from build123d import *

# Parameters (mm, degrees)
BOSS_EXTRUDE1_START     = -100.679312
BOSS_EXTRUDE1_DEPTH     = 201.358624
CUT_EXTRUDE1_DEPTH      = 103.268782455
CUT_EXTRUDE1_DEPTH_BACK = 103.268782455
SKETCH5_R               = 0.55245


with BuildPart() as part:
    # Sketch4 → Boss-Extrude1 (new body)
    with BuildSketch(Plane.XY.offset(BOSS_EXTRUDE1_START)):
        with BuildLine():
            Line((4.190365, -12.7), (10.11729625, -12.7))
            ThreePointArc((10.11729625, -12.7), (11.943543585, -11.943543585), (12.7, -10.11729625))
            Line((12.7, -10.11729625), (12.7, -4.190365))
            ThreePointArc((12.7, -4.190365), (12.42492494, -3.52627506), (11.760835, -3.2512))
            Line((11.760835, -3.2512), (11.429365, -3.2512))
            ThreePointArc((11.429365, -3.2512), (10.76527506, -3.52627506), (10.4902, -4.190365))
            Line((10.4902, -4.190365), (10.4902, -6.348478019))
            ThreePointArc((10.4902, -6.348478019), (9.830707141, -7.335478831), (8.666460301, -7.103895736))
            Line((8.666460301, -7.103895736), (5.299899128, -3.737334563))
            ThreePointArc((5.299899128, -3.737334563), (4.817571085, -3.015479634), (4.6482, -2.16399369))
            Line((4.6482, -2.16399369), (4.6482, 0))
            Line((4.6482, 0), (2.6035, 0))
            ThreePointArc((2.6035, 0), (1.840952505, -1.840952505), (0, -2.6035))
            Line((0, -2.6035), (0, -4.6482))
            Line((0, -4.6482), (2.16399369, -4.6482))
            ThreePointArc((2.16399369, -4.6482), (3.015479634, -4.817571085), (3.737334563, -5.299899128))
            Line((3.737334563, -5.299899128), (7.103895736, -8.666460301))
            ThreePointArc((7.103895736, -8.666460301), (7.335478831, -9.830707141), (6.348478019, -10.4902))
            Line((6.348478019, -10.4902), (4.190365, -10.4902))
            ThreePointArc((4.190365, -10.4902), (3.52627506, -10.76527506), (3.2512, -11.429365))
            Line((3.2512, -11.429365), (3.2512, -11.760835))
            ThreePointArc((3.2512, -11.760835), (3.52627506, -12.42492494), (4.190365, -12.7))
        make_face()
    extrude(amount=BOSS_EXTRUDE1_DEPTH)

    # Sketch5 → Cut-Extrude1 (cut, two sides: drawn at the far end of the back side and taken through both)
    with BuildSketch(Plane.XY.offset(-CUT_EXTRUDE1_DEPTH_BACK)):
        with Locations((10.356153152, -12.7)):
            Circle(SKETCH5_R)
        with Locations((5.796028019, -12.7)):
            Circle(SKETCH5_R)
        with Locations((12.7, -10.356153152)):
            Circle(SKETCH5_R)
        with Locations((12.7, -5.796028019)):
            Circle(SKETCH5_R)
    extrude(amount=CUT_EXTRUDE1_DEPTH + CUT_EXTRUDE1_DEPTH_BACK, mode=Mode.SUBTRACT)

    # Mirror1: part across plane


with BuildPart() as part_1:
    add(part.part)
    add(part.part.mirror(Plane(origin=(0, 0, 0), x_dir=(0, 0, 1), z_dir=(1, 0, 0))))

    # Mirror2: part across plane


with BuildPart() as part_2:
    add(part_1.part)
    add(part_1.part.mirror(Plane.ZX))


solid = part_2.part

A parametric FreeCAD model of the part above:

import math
import FreeCAD as App
import Part
import Sketcher
Q = App.Units.Quantity

doc = App.newDocument("Part")
body = doc.addObject("PartDesign::Body", "Body")

sketch1 = body.newObject("Sketcher::SketchObject", "Sketch")
sketch1.AttachmentSupport = (doc.getObject("XY_Plane"), [""])
sketch1.MapMode = "FlatFace"
sketch1.AttachmentOffset = App.Placement(App.Vector(0, 0, -100.679312), App.Rotation())
sketch1.addGeometry([
    Part.LineSegment(App.Vector(4.190365, -12.7, 0), App.Vector(10.117296, -12.7, 0)),
    Part.ArcOfCircle(Part.Circle(App.Vector(10.117296, -10.117296, 0), App.Vector(0, 0, 1), 2.582704), math.radians(-90), math.radians(0)),
    Part.LineSegment(App.Vector(12.7, -10.117296, 0), App.Vector(12.7, -4.190365, 0)),
    Part.ArcOfCircle(Part.Circle(App.Vector(11.760835, -4.190365, 0), App.Vector(0, 0, 1), 0.939165), math.radians(0), math.radians(90)),
    Part.LineSegment(App.Vector(11.760835, -3.2512, 0), App.Vector(11.429365, -3.2512, 0)),
    Part.ArcOfCircle(Part.Circle(App.Vector(11.429365, -4.190365, 0), App.Vector(0, 0, 1), 0.939165), math.radians(90), math.radians(180)),
    Part.LineSegment(App.Vector(10.4902, -4.190365, 0), App.Vector(10.4902, -6.348478, 0)),
    Part.ArcOfCircle(Part.Circle(App.Vector(9.421878, -6.348478, 0), App.Vector(0, 0, 1), 1.068322), math.radians(-135), math.radians(0)),
    Part.LineSegment(App.Vector(8.66646, -7.103896, 0), App.Vector(5.299899, -3.737335, 0)),
    Part.ArcOfCircle(Part.Circle(App.Vector(6.87324, -2.163994, 0), App.Vector(0, 0, 1), 2.22504), math.radians(-180), math.radians(-135)),
    Part.LineSegment(App.Vector(4.6482, -2.163994, 0), App.Vector(4.6482, 0, 0)),
    Part.LineSegment(App.Vector(4.6482, 0, 0), App.Vector(2.6035, 0, 0)),
    Part.ArcOfCircle(Part.Circle(App.Vector(0, 0, 0), App.Vector(0, 0, 1), 2.6035), math.radians(-90), math.radians(0)),
    Part.LineSegment(App.Vector(0, -2.6035, 0), App.Vector(0, -4.6482, 0)),
    Part.LineSegment(App.Vector(0, -4.6482, 0), App.Vector(2.163994, -4.6482, 0)),
    Part.ArcOfCircle(Part.Circle(App.Vector(2.163994, -6.87324, 0), App.Vector(0, 0, 1), 2.22504), math.radians(45), math.radians(90)),
    Part.LineSegment(App.Vector(3.737335, -5.299899, 0), App.Vector(7.103896, -8.66646, 0)),
    Part.ArcOfCircle(Part.Circle(App.Vector(6.348478, -9.421878, 0), App.Vector(0, 0, 1), 1.068322), math.radians(-90), math.radians(45)),
    Part.LineSegment(App.Vector(6.348478, -10.4902, 0), App.Vector(4.190365, -10.4902, 0)),
    Part.ArcOfCircle(Part.Circle(App.Vector(4.190365, -11.429365, 0), App.Vector(0, 0, 1), 0.939165), math.radians(90), math.radians(180)),
    Part.LineSegment(App.Vector(3.2512, -11.429365, 0), App.Vector(3.2512, -11.760835, 0)),
    Part.ArcOfCircle(Part.Circle(App.Vector(4.190365, -11.760835, 0), App.Vector(0, 0, 1), 0.939165), math.radians(-180), math.radians(-90)),
], False)
sketch1.addConstraint([
    Sketcher.Constraint("Tangent", 0, 2, 1, 1),
    Sketcher.Constraint("Tangent", 1, 2, 2, 1),
    Sketcher.Constraint("Tangent", 2, 2, 3, 1),
    Sketcher.Constraint("Tangent", 3, 2, 4, 1),
    Sketcher.Constraint("Tangent", 4, 2, 5, 1),
    Sketcher.Constraint("Tangent", 5, 2, 6, 1),
    Sketcher.Constraint("Tangent", 6, 2, 7, 2),
    Sketcher.Constraint("Tangent", 7, 1, 8, 1),
    Sketcher.Constraint("Tangent", 8, 2, 9, 2),
    Sketcher.Constraint("Tangent", 9, 1, 10, 1),
    Sketcher.Constraint("Coincident", 10, 2, 11, 1),
    Sketcher.Constraint("Coincident", 11, 2, 12, 2),
    Sketcher.Constraint("Coincident", 12, 1, 13, 1),
    Sketcher.Constraint("Coincident", 13, 2, 14, 1),
    Sketcher.Constraint("Tangent", 14, 2, 15, 2),
    Sketcher.Constraint("Tangent", 15, 1, 16, 1),
    Sketcher.Constraint("Tangent", 16, 2, 17, 2),
    Sketcher.Constraint("Tangent", 17, 1, 18, 1),
    Sketcher.Constraint("Tangent", 18, 2, 19, 1),
    Sketcher.Constraint("Tangent", 19, 2, 20, 1),
    Sketcher.Constraint("Tangent", 20, 2, 21, 1),
    Sketcher.Constraint("Tangent", 21, 2, 0, 1),
    Sketcher.Constraint("Horizontal", 0),
    Sketcher.Constraint("Vertical", 2),
    Sketcher.Constraint("Horizontal", 4),
    Sketcher.Constraint("Vertical", 6),
    Sketcher.Constraint("Vertical", 10),
    Sketcher.Constraint("Horizontal", 11),
    Sketcher.Constraint("Vertical", 13),
    Sketcher.Constraint("Horizontal", 14),
    Sketcher.Constraint("Horizontal", 18),
    Sketcher.Constraint("Vertical", 20),
    Sketcher.Constraint("Coincident", 12, 3, -1, 1),
    Sketcher.Constraint("Equal", 3, 5),
    Sketcher.Constraint("Equal", 9, 15),
    Sketcher.Constraint("Equal", 7, 17),
    Sketcher.Constraint("Equal", 5, 19),
    Sketcher.Constraint("Equal", 19, 21),
    Sketcher.Constraint("PointOnObject", 10, 2, -1),
    Sketcher.Constraint("PointOnObject", 12, 1, -2),
    Sketcher.Constraint("Parallel", 8, 16),
    Sketcher.Constraint("Equal", 0, 2),
    Sketcher.Constraint("Equal", 18, 6),
    Sketcher.Constraint("Equal", 14, 10),
    Sketcher.Constraint("Equal", 11, 13),
    Sketcher.Constraint("Equal", 4, 20),
    Sketcher.Constraint("Equal", 8, 16),
    Sketcher.Constraint("DistanceY", 0, 2, -1, 1, Q("0.5 in")),
    Sketcher.Constraint("Radius", 9, Q("0.0876 in")),
    Sketcher.Constraint("Radius", 12, Q("0.1025 in")),
    Sketcher.Constraint("DistanceX", 9, 1, 5, 2, Q("0.23 in")),
    Sketcher.Constraint("DistanceX", 11, 2, 11, 1, Q("0.0805 in")),
    Sketcher.Constraint("DistanceY", 3, 2, -1, 1, Q("0.128 in")),
    Sketcher.Constraint("Radius", 7, 1.068322),
    Sketcher.Constraint("DistanceX", 17, 3, 7, 3, Q("0.121 in")),
    Sketcher.Constraint("Radius", 1, 2.582704),
    Sketcher.Constraint("Radius", 3, 0.939165),
])
pad1 = body.newObject("PartDesign::Pad", "Pad")
pad1.Profile = sketch1
pad1.Length = 201.358624

sketch2 = body.newObject("Sketcher::SketchObject", "Sketch001")
sketch2.AttachmentSupport = (doc.getObject("XY_Plane"), [""])
sketch2.MapMode = "FlatFace"
sketch2.addGeometry([
    Part.Circle(App.Vector(10.356153, -12.7, 0), App.Vector(0, 0, 1), 0.55245),
    Part.Circle(App.Vector(5.796028, -12.7, 0), App.Vector(0, 0, 1), 0.55245),
    Part.Circle(App.Vector(12.7, -10.356153, 0), App.Vector(0, 0, 1), 0.55245),
    Part.Circle(App.Vector(12.7, -5.796028, 0), App.Vector(0, 0, 1), 0.55245),
], False)
sketch2.addConstraint([
    Sketcher.Constraint("Equal", 0, 1),
    Sketcher.Constraint("Equal", 1, 2),
    Sketcher.Constraint("Equal", 2, 3),
    Sketcher.Constraint("Horizontal", 0, 3, 1, 3),
    Sketcher.Constraint("Vertical", 2, 3, 3, 3),
    Sketcher.Constraint("Diameter", 0, Q("0.0435 in")),
    Sketcher.Constraint("DistanceY", 0, 3, -1, 1, Q("0.5 in")),
    Sketcher.Constraint("DistanceX", -1, 1, 2, 3, Q("0.5 in")),
    Sketcher.Constraint("DistanceX", -1, 1, 1, 3, 5.796028),
    Sketcher.Constraint("DistanceY", 3, 3, -1, 1, 5.796028),
    Sketcher.Constraint("DistanceX", -1, 1, 0, 3, 10.356153),
    Sketcher.Constraint("DistanceY", 2, 3, -1, 1, 10.356153),
])
pocket1 = body.newObject("PartDesign::Pocket", "Pocket")
pocket1.Profile = sketch2
pocket1.Type = "ThroughAll"
pocket1.Midplane = True
body2 = doc.addObject("PartDesign::Body", "Body001")
doc.recompute()

body2.BaseFeature = body
doc.recompute()

mirroring = doc.addObject("Part::Mirroring", "Mirroring")
mirroring.Source = body
mirroring.Base = App.Vector(0, 0, 0)
mirroring.Normal = App.Vector(1, 0, 0)
body3 = doc.addObject("PartDesign::Body", "Body002")
body3.BaseFeature = mirroring
boolean = body2.newObject("PartDesign::Boolean", "Boolean")
boolean.Type = "Fuse"
boolean.addObjects([body3])
doc.recompute()
body4 = doc.addObject("PartDesign::Body", "Body003")
doc.recompute()

body4.BaseFeature = body2
doc.recompute()

mirroring2 = doc.addObject("Part::Mirroring", "Mirroring001")
mirroring2.Source = body2
mirroring2.Base = App.Vector(0, 0, 0)
mirroring2.Normal = App.Vector(0, 1, 0)
body5 = doc.addObject("PartDesign::Body", "Body004")
body5.BaseFeature = mirroring2
boolean2 = body4.newObject("PartDesign::Boolean", "Boolean001")
boolean2.Type = "Fuse"
boolean2.addObjects([body5])
doc.recompute()
mirroring.Visibility = False
mirroring2.Visibility = False

doc.recompute()
